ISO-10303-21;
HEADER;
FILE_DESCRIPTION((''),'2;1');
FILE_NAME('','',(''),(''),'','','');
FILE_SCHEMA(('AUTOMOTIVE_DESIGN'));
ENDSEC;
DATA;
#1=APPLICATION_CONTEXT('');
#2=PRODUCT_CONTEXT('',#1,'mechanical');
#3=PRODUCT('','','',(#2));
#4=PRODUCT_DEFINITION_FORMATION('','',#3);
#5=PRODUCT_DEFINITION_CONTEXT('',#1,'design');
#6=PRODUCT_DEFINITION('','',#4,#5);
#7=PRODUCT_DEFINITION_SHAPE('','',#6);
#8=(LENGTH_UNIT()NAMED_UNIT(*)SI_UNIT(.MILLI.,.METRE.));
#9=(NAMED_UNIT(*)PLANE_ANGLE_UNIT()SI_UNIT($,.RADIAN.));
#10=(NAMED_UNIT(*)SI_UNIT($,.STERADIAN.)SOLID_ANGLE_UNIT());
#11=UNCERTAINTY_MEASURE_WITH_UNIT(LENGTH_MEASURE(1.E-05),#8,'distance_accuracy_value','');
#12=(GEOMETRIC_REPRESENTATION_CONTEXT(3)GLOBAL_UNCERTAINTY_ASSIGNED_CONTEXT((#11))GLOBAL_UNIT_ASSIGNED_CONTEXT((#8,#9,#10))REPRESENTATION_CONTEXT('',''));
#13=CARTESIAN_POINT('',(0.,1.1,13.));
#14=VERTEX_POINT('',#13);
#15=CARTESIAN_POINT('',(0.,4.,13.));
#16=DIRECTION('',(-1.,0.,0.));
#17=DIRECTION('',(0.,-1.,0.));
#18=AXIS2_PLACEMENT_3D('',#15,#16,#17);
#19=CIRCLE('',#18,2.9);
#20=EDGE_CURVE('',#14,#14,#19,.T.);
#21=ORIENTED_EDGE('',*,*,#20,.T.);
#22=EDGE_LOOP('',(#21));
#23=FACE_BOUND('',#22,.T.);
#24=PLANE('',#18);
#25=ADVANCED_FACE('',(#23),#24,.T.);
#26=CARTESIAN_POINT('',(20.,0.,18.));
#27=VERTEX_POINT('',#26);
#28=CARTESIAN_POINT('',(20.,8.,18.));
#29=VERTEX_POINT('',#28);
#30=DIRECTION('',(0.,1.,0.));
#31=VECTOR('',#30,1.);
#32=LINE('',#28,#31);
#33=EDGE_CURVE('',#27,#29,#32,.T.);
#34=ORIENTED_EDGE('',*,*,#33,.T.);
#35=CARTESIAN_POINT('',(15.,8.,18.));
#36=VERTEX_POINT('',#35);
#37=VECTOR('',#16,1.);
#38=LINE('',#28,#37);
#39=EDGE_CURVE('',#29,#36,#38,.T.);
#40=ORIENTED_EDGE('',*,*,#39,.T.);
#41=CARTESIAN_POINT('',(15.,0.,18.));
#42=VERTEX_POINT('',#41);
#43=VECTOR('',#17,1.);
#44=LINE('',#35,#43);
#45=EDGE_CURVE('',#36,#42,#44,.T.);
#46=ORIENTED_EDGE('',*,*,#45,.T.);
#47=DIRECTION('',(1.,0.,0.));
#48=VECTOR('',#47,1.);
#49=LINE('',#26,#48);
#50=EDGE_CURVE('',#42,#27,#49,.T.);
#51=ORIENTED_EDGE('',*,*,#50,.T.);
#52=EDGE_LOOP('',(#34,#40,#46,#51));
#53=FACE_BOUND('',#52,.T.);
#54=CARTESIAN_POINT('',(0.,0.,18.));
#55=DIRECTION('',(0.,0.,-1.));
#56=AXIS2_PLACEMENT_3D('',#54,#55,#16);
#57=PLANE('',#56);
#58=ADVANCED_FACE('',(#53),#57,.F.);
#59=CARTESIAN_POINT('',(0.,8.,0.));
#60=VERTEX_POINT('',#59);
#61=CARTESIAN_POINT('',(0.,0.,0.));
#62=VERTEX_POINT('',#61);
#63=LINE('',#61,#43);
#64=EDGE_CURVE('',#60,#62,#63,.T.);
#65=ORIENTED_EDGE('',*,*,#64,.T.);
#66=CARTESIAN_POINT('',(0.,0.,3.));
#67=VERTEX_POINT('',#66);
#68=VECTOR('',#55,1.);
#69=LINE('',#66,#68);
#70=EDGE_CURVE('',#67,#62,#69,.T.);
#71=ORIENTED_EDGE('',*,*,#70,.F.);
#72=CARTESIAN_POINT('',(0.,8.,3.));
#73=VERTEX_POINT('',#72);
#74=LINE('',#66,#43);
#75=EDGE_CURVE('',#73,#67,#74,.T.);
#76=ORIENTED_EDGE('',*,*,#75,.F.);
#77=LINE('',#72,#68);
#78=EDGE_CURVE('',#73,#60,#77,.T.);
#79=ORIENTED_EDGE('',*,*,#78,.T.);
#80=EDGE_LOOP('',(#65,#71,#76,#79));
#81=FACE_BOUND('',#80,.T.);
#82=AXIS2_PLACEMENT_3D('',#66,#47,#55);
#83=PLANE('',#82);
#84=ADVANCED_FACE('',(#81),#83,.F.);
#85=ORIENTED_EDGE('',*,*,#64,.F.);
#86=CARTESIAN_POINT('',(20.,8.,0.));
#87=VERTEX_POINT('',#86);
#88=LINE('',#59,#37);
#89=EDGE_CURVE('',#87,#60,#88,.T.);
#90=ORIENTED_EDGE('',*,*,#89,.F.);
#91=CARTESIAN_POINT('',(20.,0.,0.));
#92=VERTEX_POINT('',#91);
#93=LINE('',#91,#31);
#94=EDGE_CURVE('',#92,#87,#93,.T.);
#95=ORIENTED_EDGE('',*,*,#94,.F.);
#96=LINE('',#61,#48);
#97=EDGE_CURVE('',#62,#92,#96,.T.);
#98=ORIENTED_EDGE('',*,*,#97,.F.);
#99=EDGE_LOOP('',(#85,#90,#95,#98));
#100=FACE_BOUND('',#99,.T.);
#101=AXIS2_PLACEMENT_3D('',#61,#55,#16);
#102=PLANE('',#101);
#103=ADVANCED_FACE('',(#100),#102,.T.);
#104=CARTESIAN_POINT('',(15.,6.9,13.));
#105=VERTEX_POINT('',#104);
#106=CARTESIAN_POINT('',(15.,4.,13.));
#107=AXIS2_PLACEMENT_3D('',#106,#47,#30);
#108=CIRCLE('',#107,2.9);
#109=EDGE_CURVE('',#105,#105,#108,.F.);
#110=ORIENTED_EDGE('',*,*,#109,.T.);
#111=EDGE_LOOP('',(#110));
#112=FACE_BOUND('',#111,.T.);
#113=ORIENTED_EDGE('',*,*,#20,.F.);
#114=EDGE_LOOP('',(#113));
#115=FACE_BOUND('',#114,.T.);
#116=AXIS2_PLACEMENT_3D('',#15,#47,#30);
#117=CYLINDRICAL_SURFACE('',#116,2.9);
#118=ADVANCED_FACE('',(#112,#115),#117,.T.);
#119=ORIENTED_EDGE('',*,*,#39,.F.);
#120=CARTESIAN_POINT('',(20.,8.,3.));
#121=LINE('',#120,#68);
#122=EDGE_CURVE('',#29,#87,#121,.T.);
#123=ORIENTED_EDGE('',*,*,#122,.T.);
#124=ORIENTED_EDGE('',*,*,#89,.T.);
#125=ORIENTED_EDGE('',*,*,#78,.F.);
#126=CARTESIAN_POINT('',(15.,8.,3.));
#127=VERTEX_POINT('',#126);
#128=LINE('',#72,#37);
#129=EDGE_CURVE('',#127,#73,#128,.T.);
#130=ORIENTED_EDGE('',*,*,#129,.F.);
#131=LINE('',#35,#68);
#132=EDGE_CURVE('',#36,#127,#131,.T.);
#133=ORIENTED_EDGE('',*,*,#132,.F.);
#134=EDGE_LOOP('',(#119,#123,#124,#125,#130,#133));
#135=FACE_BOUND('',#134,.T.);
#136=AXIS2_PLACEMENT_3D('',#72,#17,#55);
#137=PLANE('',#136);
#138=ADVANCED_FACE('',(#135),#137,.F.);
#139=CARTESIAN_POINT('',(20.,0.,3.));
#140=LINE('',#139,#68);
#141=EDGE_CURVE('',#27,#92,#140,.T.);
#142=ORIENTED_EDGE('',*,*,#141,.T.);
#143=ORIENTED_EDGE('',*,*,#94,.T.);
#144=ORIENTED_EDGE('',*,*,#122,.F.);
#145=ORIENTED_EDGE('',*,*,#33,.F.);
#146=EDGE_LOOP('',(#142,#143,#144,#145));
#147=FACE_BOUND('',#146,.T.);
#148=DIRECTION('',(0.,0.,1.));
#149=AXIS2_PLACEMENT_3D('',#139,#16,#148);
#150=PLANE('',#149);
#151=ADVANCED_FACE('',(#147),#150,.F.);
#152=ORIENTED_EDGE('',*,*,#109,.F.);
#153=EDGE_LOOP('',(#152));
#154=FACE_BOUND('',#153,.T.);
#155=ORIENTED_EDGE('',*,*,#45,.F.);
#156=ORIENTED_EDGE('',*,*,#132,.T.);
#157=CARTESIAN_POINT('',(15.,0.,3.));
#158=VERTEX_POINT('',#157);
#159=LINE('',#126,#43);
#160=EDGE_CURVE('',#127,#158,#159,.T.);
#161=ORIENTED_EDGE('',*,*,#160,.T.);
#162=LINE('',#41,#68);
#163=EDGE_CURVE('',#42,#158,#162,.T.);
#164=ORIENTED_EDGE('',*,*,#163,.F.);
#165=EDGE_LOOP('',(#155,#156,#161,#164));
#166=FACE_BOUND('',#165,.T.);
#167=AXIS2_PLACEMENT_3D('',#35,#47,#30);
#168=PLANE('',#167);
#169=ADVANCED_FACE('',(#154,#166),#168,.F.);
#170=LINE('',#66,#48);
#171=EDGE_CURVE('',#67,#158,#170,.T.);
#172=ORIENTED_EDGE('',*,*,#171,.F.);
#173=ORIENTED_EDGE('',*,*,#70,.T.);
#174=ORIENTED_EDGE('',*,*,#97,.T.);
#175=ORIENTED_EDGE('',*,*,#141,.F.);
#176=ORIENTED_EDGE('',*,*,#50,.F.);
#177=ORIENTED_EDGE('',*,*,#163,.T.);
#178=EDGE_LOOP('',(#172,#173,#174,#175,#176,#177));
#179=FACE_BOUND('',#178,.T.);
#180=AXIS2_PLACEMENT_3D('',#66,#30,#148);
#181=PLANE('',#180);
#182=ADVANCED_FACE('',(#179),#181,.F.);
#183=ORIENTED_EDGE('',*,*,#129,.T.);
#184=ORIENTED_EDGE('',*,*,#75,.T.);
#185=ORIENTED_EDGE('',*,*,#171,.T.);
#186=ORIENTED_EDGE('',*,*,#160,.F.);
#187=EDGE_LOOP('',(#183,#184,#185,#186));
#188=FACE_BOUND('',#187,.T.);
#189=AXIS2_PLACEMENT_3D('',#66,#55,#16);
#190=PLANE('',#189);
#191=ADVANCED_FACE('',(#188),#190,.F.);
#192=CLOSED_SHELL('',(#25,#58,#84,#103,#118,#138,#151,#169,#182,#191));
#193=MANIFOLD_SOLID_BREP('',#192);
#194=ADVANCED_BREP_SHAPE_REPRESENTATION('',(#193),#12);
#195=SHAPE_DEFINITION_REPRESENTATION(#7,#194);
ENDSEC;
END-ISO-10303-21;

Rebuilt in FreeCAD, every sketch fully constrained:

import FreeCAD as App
import Part
import Sketcher
Q = App.Units.Quantity


def add_polygon(sketch, points):
    """Adds a closed chain of lines whose ends are joined by coincident constraints."""
    first, n = sketch.GeometryCount, len(points)
    for a, b in zip(points, points[1:] + points[:1]):
        sketch.addGeometry(Part.LineSegment(App.Vector(*a, 0), App.Vector(*b, 0)), False)
    for i in range(n):
        sketch.addConstraint(Sketcher.Constraint("Coincident", first + i, 2, first + (i + 1) % n, 1))

doc = App.newDocument("Part")
body = doc.addObject("PartDesign::Body", "Body")

# Sketch on XY plane
sketch1 = body.newObject("Sketcher::SketchObject", "Sketch")
sketch1.AttachmentSupport = (doc.getObject("XY_Plane"), [""])
sketch1.MapMode = "FlatFace"
add_polygon(sketch1, [(0, 8), (0, 0), (20, 0), (20, 8)])  # lines 0-3
sketch1.addConstraint([
    Sketcher.Constraint("Vertical", 0),
    Sketcher.Constraint("Horizontal", 1),
    Sketcher.Constraint("Vertical", 2),
    Sketcher.Constraint("Horizontal", 3),
    Sketcher.Constraint("Coincident", 0, 2, -1, 1),
    Sketcher.Constraint("DistanceX", 1, 1, 1, 2, Q("20 mm")),
    Sketcher.Constraint("DistanceY", 0, 2, 0, 1, Q("8 mm")),
])
pad1 = body.newObject("PartDesign::Pad", "Pad")
pad1.Profile = sketch1
pad1.Length = 3

# Sketch on XY plane
sketch2 = body.newObject("Sketcher::SketchObject", "Sketch001")
sketch2.AttachmentSupport = (doc.getObject("XY_Plane"), [""])
sketch2.MapMode = "FlatFace"
sketch2.AttachmentOffset = App.Placement(App.Vector(0, 0, 3), App.Rotation())
add_polygon(sketch2, [(15, 8), (15, 0), (20, 0), (20, 8)])  # lines 0-3
sketch2.addConstraint([
    Sketcher.Constraint("Vertical", 0),
    Sketcher.Constraint("Horizontal", 1),
    Sketcher.Constraint("Vertical", 2),
    Sketcher.Constraint("Horizontal", 3),
    Sketcher.Constraint("PointOnObject", 0, 2, -1),
    Sketcher.Constraint("DistanceX", 1, 1, 1, 2, Q("5 mm")),
    Sketcher.Constraint("DistanceY", 0, 2, 0, 1, Q("8 mm")),
    Sketcher.Constraint("DistanceX", -1, 1, 0, 2, Q("15 mm")),
])
pad2 = body.newObject("PartDesign::Pad", "Pad001")
pad2.Profile = sketch2
pad2.Length = 15

# Sketch on YZ plane
sketch3 = body.newObject("Sketcher::SketchObject", "Sketch002")
sketch3.AttachmentSupport = (doc.getObject("YZ_Plane"), [""])
sketch3.MapMode = "FlatFace"
sketch3.AttachmentOffset = App.Placement(App.Vector(0, 0, 15), App.Rotation())
sketch3.addGeometry(Part.Circle(App.Vector(4, 13, 0), App.Vector(0, 0, 1), 2.9), False)
sketch3.addConstraint([
    Sketcher.Constraint("Diameter", 0, Q("5.8 mm")),
    Sketcher.Constraint("DistanceX", -1, 1, 0, 3, Q("4 mm")),
    Sketcher.Constraint("DistanceY", -1, 1, 0, 3, Q("13 mm")),
])
pad3 = body.newObject("PartDesign::Pad", "Pad002")
pad3.Profile = sketch3
pad3.Length = 15
pad3.Reversed = True

doc.recompute()
